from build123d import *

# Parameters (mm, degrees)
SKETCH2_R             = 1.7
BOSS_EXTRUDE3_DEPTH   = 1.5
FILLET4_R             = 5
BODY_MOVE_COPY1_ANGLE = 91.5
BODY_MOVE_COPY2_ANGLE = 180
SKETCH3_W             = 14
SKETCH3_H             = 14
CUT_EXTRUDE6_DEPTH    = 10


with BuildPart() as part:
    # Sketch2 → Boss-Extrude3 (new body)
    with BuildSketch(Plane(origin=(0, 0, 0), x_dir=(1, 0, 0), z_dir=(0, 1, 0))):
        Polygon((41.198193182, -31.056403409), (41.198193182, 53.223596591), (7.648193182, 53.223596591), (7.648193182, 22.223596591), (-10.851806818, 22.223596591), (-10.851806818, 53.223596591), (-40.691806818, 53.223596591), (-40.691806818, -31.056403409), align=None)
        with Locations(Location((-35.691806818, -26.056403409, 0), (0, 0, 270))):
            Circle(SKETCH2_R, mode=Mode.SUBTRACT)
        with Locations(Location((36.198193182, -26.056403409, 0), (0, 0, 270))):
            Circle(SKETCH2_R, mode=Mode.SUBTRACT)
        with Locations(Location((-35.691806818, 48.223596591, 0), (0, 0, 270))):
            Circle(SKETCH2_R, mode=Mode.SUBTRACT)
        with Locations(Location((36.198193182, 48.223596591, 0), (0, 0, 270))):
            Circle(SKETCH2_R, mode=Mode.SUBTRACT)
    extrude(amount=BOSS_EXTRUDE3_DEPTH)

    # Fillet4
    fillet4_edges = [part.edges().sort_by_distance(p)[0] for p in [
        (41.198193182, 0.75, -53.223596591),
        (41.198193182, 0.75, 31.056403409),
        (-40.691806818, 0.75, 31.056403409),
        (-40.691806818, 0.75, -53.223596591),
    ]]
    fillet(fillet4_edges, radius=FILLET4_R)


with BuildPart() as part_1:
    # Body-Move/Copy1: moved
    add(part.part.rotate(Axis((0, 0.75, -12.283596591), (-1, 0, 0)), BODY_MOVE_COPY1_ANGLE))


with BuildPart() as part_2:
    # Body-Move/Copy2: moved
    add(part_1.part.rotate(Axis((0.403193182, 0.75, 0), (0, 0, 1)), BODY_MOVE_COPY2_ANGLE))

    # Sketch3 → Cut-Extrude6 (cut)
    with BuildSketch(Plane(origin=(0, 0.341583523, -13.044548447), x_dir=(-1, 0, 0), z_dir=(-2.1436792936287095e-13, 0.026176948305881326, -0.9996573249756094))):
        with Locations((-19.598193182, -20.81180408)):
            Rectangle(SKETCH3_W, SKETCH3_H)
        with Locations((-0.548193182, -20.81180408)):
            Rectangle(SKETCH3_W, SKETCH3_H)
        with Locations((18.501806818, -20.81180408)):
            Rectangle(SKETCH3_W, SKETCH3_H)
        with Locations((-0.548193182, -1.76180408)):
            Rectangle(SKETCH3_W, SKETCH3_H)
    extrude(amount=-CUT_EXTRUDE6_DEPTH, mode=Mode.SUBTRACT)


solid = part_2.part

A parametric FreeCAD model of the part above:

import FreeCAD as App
import Part
import Sketcher


def edges_at(feature, points):
    """Names of the edges that pass closest to the given points."""
    edges = feature.Shape.Edges
    near = lambda p: min(range(len(edges)), key=lambda i: edges[i].distToShape(Part.Vertex(*p))[0])
    return sorted({f"Edge{near(p) + 1}" for p in points})


def add_polygon(sketch, points):
    """Adds a closed chain of lines whose ends are joined by coincident constraints."""
    first, n = sketch.GeometryCount, len(points)
    for a, b in zip(points, points[1:] + points[:1]):
        sketch.addGeometry(Part.LineSegment(App.Vector(*a, 0), App.Vector(*b, 0)), False)
    for i in range(n):
        sketch.addConstraint(Sketcher.Constraint("Coincident", first + i, 2, first + (i + 1) % n, 1))

doc = App.newDocument("Part")
body = doc.addObject("PartDesign::Body", "Body")

sketch1 = doc.addObject("Sketcher::SketchObject", "Sketch")
body.addObject(sketch1)
sketch1.AttachmentSupport = (doc.XZ_Plane, [""])
sketch1.MapMode = "FlatFace"
add_polygon(sketch1, [(41.2, 31.1), (41.2, -53.2), (7.6, -53.2), (7.6, -22.2), (-10.9, -22.2), (-10.9, -53.2), (-40.7, -53.2), (-40.7, 31.1)])
sketch1.addGeometry(Part.Circle(App.Vector(-35.7, 26.1, 0), App.Vector(0, 0, 1), 1.7), False)
sketch1.addGeometry(Part.Circle(App.Vector(36.2, 26.1, 0), App.Vector(0, 0, 1), 1.7), False)
sketch1.addGeometry(Part.Circle(App.Vector(-35.7, -48.2, 0), App.Vector(0, 0, 1), 1.7), False)
sketch1.addGeometry(Part.Circle(App.Vector(36.2, -48.2, 0), App.Vector(0, 0, 1), 1.7), False)
sketch1.addConstraint(Sketcher.Constraint("Vertical", 0))
sketch1.addConstraint(Sketcher.Constraint("Horizontal", 1))
sketch1.addConstraint(Sketcher.Constraint("Vertical", 2))
sketch1.addConstraint(Sketcher.Constraint("Horizontal", 3))
sketch1.addConstraint(Sketcher.Constraint("Vertical", 4))
sketch1.addConstraint(Sketcher.Constraint("Horizontal", 5))
sketch1.addConstraint(Sketcher.Constraint("Vertical", 6))
sketch1.addConstraint(Sketcher.Constraint("Horizontal", 7))
sketch1.addConstraint(Sketcher.Constraint("Equal", 8, 9))
sketch1.addConstraint(Sketcher.Constraint("Equal", 9, 10))
sketch1.addConstraint(Sketcher.Constraint("Equal", 10, 11))
sketch1.addConstraint(Sketcher.Constraint("Horizontal", 8, 3, 9, 3))
sketch1.addConstraint(Sketcher.Constraint("Horizontal", 10, 3, 11, 3))
sketch1.addConstraint(Sketcher.Constraint("Horizontal", 1, 2, 4, 2))
sketch1.addConstraint(Sketcher.Constraint("Vertical", 8, 3, 10, 3))
sketch1.addConstraint(Sketcher.Constraint("Vertical", 9, 3, 11, 3))
sketch1.addConstraint(Sketcher.Constraint("Diameter", 8, 3.4))
sketch1.addConstraint(Sketcher.Constraint("DistanceY", 2, 1, 2, 2, 31.0))
sketch1.addConstraint(Sketcher.Constraint("DistanceX", 3, 2, 3, 1, 18.5))
sketch1.addConstraint(Sketcher.Constraint("DistanceX", 11, 3, 0, 2, 5.0))
sketch1.addConstraint(Sketcher.Constraint("DistanceY", 0, 2, 11, 3, 5.0))
sketch1.addConstraint(Sketcher.Constraint("DistanceX", 5, 2, 10, 3, 5.0))
sketch1.addConstraint(Sketcher.Constraint("DistanceY", 8, 3, 6, 2, 5.0))
sketch1.addConstraint(Sketcher.Constraint("DistanceX", 1, 2, 1, 1, 33.55))
sketch1.addConstraint(Sketcher.Constraint("DistanceX", 5, 2, 5, 1, 29.84))
sketch1.addConstraint(Sketcher.Constraint("DistanceY", 0, 2, 0, 1, 84.28))
sketch1.addConstraint(Sketcher.Constraint("DistanceX", 8, 3, -1, 1, 35.691807))
sketch1.addConstraint(Sketcher.Constraint("DistanceY", -1, 1, 8, 3, 26.056403))
pad1 = doc.addObject("PartDesign::Pad", "Pad")
body.addObject(pad1)
pad1.Profile = sketch1
pad1.Length = 1.5
pad1.Reversed = True
doc.recompute()

fillet = doc.addObject("PartDesign::Fillet", "Fillet")
body.addObject(fillet)
fillet.Base = (pad1, edges_at(pad1, [
    (41.198, 0.75, -53.224),
    (41.198, 0.75, 31.056),
    (-40.692, 0.75, 31.056),
    (-40.692, 0.75, -53.224),
]))
fillet.Radius = 5
body2 = doc.addObject("PartDesign::Body", "Body001")
doc.recompute()

body.Placement = App.Placement(App.Vector(0, 13.04902, -11.855401), App.Rotation(App.Vector(-1, 0, 0), 91.5))
boolean = doc.addObject("PartDesign::Boolean", "Boolean")
body2.addObject(boolean)
boolean.Type = "Fuse"
boolean.addObjects([body])
body3 = doc.addObject("PartDesign::Body", "Body002")
doc.recompute()

body2.Placement = App.Placement(App.Vector(0.806386, 1.5, 0), App.Rotation(App.Vector(0, 0, 1), 180))
boolean2 = doc.addObject("PartDesign::Boolean", "Boolean001")
body3.addObject(boolean2)
boolean2.Type = "Fuse"
boolean2.addObjects([body2])

sketch2 = doc.addObject("Sketcher::SketchObject", "Sketch001")
body3.addObject(sketch2)
sketch2.Placement = App.Placement(App.Vector(0, 0.341584, -13.044548), App.Rotation(App.Vector(-1, 0, 0), App.Vector(0, 0.999657325, 0.026176948), App.Vector(0, 0.026176948, -0.999657325), "ZXY"))
add_polygon(sketch2, [(-27, -14), (-27, -28), (-13, -28), (-13, -14)])
add_polygon(sketch2, [(-8, -14), (-8, -28), (6, -28), (6, -14)])
add_polygon(sketch2, [(12, -14), (12, -28), (26, -28), (26, -14)])
add_polygon(sketch2, [(-8, 5), (-8, -9), (6, -9), (6, 5)])
sketch2.addConstraint(Sketcher.Constraint("Vertical", 0))
sketch2.addConstraint(Sketcher.Constraint("Horizontal", 1))
sketch2.addConstraint(Sketcher.Constraint("Vertical", 2))
sketch2.addConstraint(Sketcher.Constraint("Horizontal", 3))
sketch2.addConstraint(Sketcher.Constraint("Vertical", 4))
sketch2.addConstraint(Sketcher.Constraint("Horizontal", 5))
sketch2.addConstraint(Sketcher.Constraint("Vertical", 6))
sketch2.addConstraint(Sketcher.Constraint("Horizontal", 7))
sketch2.addConstraint(Sketcher.Constraint("Vertical", 8))
sketch2.addConstraint(Sketcher.Constraint("Horizontal", 9))
sketch2.addConstraint(Sketcher.Constraint("Vertical", 10))
sketch2.addConstraint(Sketcher.Constraint("Horizontal", 11))
sketch2.addConstraint(Sketcher.Constraint("Vertical", 12))
sketch2.addConstraint(Sketcher.Constraint("Horizontal", 13))
sketch2.addConstraint(Sketcher.Constraint("Vertical", 14))
sketch2.addConstraint(Sketcher.Constraint("Horizontal", 15))
sketch2.addConstraint(Sketcher.Constraint("Horizontal", 1, 2, 4, 2))
sketch2.addConstraint(Sketcher.Constraint("Horizontal", 3, 2, 6, 2))
sketch2.addConstraint(Sketcher.Constraint("Horizontal", 5, 2, 8, 2))
sketch2.addConstraint(Sketcher.Constraint("Horizontal", 7, 2, 10, 2))
sketch2.addConstraint(Sketcher.Constraint("Vertical", 7, 2, 12, 2))
sketch2.addConstraint(Sketcher.Constraint("Vertical", 6, 2, 13, 2))
sketch2.addConstraint(Sketcher.Constraint("Equal", 3, 5))
sketch2.addConstraint(Sketcher.Constraint("Equal", 7, 9))
sketch2.addConstraint(Sketcher.Constraint("Equal", 15, 0))
sketch2.addConstraint(Sketcher.Constraint("Equal", 10, 12))
sketch2.addConstraint(Sketcher.Constraint("DistanceX", 1, 1, 1, 2, 14.0))
sketch2.addConstraint(Sketcher.Constraint("DistanceX", 1, 2, 8, 2, 24.1))
sketch2.addConstraint(Sketcher.Constraint("DistanceX", 1, 2, 4, 2, 5.05))
sketch2.addConstraint(Sketcher.Constraint("DistanceY", 7, 2, 12, 2, 5.05))
sketch2.addConstraint(Sketcher.Constraint("DistanceX", 0, 2, -1, 1, 26.598193))
sketch2.addConstraint(Sketcher.Constraint("DistanceY", 0, 2, -1, 1, 27.811804))
pocket1 = doc.addObject("PartDesign::Pocket", "Pocket")
body3.addObject(pocket1)
pocket1.Profile = sketch2
pocket1.Length = 10

doc.recompute()
